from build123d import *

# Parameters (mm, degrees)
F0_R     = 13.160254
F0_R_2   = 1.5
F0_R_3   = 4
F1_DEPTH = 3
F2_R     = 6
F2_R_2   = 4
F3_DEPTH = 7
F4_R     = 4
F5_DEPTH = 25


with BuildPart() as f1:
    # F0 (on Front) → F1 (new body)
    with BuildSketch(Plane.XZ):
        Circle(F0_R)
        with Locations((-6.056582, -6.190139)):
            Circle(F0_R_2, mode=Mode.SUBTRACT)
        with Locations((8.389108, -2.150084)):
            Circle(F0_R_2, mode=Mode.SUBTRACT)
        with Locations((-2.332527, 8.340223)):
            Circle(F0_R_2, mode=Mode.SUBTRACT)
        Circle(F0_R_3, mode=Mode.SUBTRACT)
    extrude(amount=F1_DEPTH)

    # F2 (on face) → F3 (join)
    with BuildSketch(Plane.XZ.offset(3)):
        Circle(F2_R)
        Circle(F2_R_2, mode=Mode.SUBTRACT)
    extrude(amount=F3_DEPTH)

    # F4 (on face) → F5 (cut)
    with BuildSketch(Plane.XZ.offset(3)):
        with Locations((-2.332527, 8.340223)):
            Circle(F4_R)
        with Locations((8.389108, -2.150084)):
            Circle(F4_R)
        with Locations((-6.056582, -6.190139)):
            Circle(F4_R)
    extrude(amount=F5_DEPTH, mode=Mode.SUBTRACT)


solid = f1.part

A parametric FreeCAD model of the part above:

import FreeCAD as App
import Part
import Sketcher

V = App.Vector

doc = App.newDocument("Part")
body = doc.addObject("PartDesign::Body", "Body")

sketch1 = body.newObject("Sketcher::SketchObject", "Sketch")
sketch1.AttachmentSupport = (doc.getObject("XZ_Plane"), [""])
sketch1.MapMode = "FlatFace"
sketch1.addGeometry([
    Part.Circle(V(0, 0, 0), V(0, 0, 1), 13.160254),
    Part.Circle(V(-6.056582, -6.190139, 0), V(0, 0, 1), 1.5),
    Part.Circle(V(0, 0, 0), V(0, 0, 1), 4),
    Part.Circle(V(8.389108, -2.150084, 0), V(0, 0, 1), 1.5),
    Part.Circle(V(-2.332527, 8.340223, 0), V(0, 0, 1), 1.5),
], False)
sketch1.addConstraint([
    Sketcher.Constraint("Coincident", 0, 3, -1, 1),
    Sketcher.Constraint("Coincident", 2, 3, -1, 1),
    Sketcher.Constraint("Equal", 1, 3),
    Sketcher.Constraint("Equal", 3, 4),
    Sketcher.Constraint("Diameter", 1, 3.0),
    Sketcher.Constraint("Diameter", 2, 8.0),
    Sketcher.Constraint("Diameter", 0, 26.320508),
    Sketcher.Constraint("DistanceX", 1, 3, -1, 1, 6.056582),
    Sketcher.Constraint("DistanceY", 1, 3, -1, 1, 6.190139),
    Sketcher.Constraint("DistanceX", 1, 3, 3, 3, 14.44569),
    Sketcher.Constraint("DistanceY", 3, 3, -1, 1, 2.150084),
    Sketcher.Constraint("DistanceX", 4, 3, -1, 1, 2.332527),
    Sketcher.Constraint("DistanceY", -1, 1, 4, 3, 8.340223),
])
pad1 = body.newObject("PartDesign::Pad", "Pad")
pad1.Profile = sketch1
pad1.Length = 3

sketch2 = body.newObject("Sketcher::SketchObject", "Sketch001")
sketch2.AttachmentSupport = (doc.getObject("XZ_Plane"), [""])
sketch2.MapMode = "FlatFace"
sketch2.AttachmentOffset = App.Placement(V(0, 0, 3), App.Rotation())
sketch2.addGeometry([
    Part.Circle(V(0, 0, 0), V(0, 0, 1), 6),
    Part.Circle(V(0, 0, 0), V(0, 0, 1), 4),
], False)
sketch2.addConstraint([
    Sketcher.Constraint("Coincident", 0, 3, -1, 1),
    Sketcher.Constraint("Coincident", 1, 3, -1, 1),
    Sketcher.Constraint("Diameter", 0, 12.0),
    Sketcher.Constraint("Diameter", 1, 8.0),
])
pad2 = body.newObject("PartDesign::Pad", "Pad001")
pad2.Profile = sketch2
pad2.Length = 7

sketch3 = body.newObject("Sketcher::SketchObject", "Sketch002")
sketch3.AttachmentSupport = (doc.getObject("XZ_Plane"), [""])
sketch3.MapMode = "FlatFace"
sketch3.AttachmentOffset = App.Placement(V(0, 0, 3), App.Rotation())
sketch3.addGeometry([
    Part.Circle(V(-2.332527, 8.340223, 0), V(0, 0, 1), 4),
    Part.Circle(V(8.389108, -2.150084, 0), V(0, 0, 1), 4),
    Part.Circle(V(-6.056582, -6.190139, 0), V(0, 0, 1), 4),
], False)
sketch3.addConstraint([
    Sketcher.Constraint("Equal", 0, 1),
    Sketcher.Constraint("Equal", 1, 2),
    Sketcher.Constraint("Diameter", 0, 8.0),
    Sketcher.Constraint("DistanceX", 2, 3, -1, 1, 6.056582),
    Sketcher.Constraint("DistanceY", 2, 3, -1, 1, 6.190139),
    Sketcher.Constraint("DistanceX", 2, 3, 1, 3, 14.44569),
    Sketcher.Constraint("DistanceX", 0, 3, -1, 1, 2.332527),
    Sketcher.Constraint("DistanceY", -1, 1, 0, 3, 8.340223),
    Sketcher.Constraint("DistanceY", 1, 3, -1, 1, 2.150084),
])
pocket1 = body.newObject("PartDesign::Pocket", "Pocket")
pocket1.Profile = sketch3
pocket1.Length = 25
pocket1.Reversed = True

doc.recompute()
